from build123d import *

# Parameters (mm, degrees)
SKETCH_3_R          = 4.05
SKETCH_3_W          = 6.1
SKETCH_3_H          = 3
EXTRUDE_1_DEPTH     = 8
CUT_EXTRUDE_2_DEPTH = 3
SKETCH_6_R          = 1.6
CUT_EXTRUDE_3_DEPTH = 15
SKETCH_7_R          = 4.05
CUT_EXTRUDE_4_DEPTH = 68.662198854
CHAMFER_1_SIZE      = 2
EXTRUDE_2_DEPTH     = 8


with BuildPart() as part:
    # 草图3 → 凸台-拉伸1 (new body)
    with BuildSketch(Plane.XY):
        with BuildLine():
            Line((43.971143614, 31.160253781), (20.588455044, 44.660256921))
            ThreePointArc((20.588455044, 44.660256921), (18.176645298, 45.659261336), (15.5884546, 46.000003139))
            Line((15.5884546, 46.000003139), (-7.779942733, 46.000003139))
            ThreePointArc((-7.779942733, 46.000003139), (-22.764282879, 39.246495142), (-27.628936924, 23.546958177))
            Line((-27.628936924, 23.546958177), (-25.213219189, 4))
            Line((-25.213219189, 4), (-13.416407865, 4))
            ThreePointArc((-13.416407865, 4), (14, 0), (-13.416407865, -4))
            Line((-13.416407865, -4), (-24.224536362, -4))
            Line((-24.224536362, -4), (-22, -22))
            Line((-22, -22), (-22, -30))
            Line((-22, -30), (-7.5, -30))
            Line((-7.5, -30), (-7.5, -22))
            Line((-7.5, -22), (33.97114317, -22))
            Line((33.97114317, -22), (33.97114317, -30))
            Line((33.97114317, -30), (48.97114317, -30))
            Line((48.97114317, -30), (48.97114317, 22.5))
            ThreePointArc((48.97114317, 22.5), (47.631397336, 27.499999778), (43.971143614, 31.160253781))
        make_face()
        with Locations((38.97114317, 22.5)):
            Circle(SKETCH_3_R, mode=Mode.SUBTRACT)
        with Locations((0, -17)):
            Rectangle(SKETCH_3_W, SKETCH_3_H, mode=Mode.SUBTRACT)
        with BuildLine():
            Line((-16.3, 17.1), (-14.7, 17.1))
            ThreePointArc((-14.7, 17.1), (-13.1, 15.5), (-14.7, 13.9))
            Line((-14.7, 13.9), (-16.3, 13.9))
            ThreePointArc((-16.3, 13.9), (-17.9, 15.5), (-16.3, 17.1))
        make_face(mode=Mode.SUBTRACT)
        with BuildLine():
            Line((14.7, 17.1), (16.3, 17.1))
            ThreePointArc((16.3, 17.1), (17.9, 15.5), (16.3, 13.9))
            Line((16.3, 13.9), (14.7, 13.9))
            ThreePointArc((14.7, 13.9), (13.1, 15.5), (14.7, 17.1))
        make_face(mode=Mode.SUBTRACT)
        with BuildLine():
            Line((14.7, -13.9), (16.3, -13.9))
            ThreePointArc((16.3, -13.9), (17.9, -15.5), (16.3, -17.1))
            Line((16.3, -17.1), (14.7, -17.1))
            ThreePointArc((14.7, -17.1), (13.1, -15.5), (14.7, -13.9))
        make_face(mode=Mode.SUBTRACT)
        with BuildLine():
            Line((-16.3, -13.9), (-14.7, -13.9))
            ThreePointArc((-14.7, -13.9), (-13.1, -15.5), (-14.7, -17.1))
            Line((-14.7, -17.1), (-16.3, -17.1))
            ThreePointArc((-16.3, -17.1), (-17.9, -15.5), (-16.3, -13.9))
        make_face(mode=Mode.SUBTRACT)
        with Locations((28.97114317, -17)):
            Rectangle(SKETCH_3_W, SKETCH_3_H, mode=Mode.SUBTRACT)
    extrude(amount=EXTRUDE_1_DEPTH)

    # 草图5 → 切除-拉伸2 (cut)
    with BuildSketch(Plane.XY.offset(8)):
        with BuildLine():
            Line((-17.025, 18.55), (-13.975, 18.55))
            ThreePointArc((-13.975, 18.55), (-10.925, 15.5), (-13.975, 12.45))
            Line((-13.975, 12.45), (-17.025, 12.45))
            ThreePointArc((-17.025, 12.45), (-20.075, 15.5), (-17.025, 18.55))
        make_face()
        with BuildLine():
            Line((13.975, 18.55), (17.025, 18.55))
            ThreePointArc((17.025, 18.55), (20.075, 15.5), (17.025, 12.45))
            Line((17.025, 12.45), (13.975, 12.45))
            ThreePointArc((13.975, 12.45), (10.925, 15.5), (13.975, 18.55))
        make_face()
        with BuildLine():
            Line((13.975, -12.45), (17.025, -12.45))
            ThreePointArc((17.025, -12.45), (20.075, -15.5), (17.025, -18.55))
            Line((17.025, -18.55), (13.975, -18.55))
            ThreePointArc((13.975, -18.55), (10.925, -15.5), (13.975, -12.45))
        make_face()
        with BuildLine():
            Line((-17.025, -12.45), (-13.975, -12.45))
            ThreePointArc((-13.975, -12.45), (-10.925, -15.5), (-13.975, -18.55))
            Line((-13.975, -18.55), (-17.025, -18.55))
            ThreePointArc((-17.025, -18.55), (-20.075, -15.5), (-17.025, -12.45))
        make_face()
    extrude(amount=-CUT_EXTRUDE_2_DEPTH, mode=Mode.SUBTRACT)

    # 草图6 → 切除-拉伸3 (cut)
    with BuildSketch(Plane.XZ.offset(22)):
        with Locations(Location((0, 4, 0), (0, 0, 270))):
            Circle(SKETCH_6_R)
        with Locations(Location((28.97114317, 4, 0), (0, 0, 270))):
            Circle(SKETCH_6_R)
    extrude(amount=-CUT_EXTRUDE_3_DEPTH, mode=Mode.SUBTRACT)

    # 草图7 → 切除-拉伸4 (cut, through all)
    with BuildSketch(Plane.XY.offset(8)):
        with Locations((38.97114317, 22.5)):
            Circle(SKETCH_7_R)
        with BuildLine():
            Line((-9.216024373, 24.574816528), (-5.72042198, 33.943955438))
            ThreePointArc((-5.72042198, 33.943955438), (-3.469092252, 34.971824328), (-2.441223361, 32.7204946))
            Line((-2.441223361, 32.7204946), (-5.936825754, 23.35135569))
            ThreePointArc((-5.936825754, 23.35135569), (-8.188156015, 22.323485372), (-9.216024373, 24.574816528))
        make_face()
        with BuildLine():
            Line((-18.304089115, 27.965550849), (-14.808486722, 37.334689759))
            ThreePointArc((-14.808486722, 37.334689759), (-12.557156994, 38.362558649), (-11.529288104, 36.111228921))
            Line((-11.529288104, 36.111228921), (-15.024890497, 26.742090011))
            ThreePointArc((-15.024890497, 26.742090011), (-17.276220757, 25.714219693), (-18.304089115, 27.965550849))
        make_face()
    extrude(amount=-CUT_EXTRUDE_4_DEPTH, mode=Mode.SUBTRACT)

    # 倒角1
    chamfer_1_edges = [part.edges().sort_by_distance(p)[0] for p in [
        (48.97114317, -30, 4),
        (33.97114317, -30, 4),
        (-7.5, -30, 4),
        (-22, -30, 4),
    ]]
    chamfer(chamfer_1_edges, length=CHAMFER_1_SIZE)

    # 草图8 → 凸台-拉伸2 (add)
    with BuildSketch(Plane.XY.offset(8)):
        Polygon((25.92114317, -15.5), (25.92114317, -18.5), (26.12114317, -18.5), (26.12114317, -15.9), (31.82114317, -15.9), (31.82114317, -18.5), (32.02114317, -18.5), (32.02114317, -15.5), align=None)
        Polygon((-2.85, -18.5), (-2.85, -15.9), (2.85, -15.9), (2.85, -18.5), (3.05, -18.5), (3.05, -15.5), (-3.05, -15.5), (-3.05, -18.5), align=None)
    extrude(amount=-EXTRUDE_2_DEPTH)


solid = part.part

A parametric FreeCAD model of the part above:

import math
import FreeCAD as App
import Part
import Sketcher

V = App.Vector
Q = App.Units.Quantity


def edges_at(feature, points):
    """Names of the edges that pass closest to the given points."""
    edges = feature.Shape.Edges
    near = lambda p: min(range(len(edges)), key=lambda i: edges[i].distToShape(Part.Vertex(*p))[0])
    return sorted({f"Edge{near(p) + 1}" for p in points})


def add_polygon(sketch, points):
    """Adds a closed chain of lines whose ends are joined by coincident constraints."""
    first, n = sketch.GeometryCount, len(points)
    for a, b in zip(points, points[1:] + points[:1]):
        sketch.addGeometry(Part.LineSegment(App.Vector(*a, 0), App.Vector(*b, 0)), False)
    for i in range(n):
        sketch.addConstraint(Sketcher.Constraint("Coincident", first + i, 2, first + (i + 1) % n, 1))

doc = App.newDocument("Part")
body = doc.addObject("PartDesign::Body", "Body")

# Sketch on XY plane
sketch1 = doc.addObject("Sketcher::SketchObject", "Sketch")
body.addObject(sketch1)
sketch1.AttachmentSupport = (doc.XY_Plane, [""])
sketch1.MapMode = "FlatFace"
sketch1.addGeometry(Part.LineSegment(V(44, 31.2, 0), V(20.6, 44.7, 0)), False)  # 0
sketch1.addGeometry(Part.ArcOfCircle(Part.Circle(V(15.6, 36, 0), V(0, 0, 1), 10), math.radians(60), math.radians(90)), False)  # 1
sketch1.addGeometry(Part.LineSegment(V(15.6, 46, 0), V(-7.8, 46, 0)), False)  # 2
sketch1.addGeometry(Part.ArcOfCircle(Part.Circle(V(-7.8, 26, 0), V(0, 0, 1), 20), math.radians(90), math.radians(187)), False)  # 3
sketch1.addGeometry(Part.LineSegment(V(-27.6, 23.5, 0), V(-25.2, 4, 0)), False)  # 4
sketch1.addGeometry(Part.LineSegment(V(-25.2, 4, 0), V(-13.4, 4, 0)), False)  # 5
sketch1.addGeometry(Part.ArcOfCircle(Part.Circle(V(0, 0, 0), V(0, 0, 1), 14), math.radians(-163), math.radians(163)), False)  # 6
sketch1.addGeometry(Part.LineSegment(V(-13.4, -4, 0), V(-24.2, -4, 0)), False)  # 7
sketch1.addGeometry(Part.LineSegment(V(-24.2, -4, 0), V(-22, -22, 0)), False)  # 8
sketch1.addGeometry(Part.LineSegment(V(-22, -22, 0), V(-22, -30, 0)), False)  # 9
sketch1.addGeometry(Part.LineSegment(V(-22, -30, 0), V(-7.5, -30, 0)), False)  # 10
sketch1.addGeometry(Part.LineSegment(V(-7.5, -30, 0), V(-7.5, -22, 0)), False)  # 11
sketch1.addGeometry(Part.LineSegment(V(-7.5, -22, 0), V(34, -22, 0)), False)  # 12
sketch1.addGeometry(Part.LineSegment(V(34, -22, 0), V(34, -30, 0)), False)  # 13
sketch1.addGeometry(Part.LineSegment(V(34, -30, 0), V(49, -30, 0)), False)  # 14
sketch1.addGeometry(Part.LineSegment(V(49, -30, 0), V(49, 22.5, 0)), False)  # 15
sketch1.addGeometry(Part.ArcOfCircle(Part.Circle(V(39, 22.5, 0), V(0, 0, 1), 10), math.radians(0), math.radians(60)), False)  # 16
sketch1.addGeometry(Part.ArcOfCircle(Part.Circle(V(-16.3, -15.5, 0), V(0, 0, 1), 1.6), math.radians(90), math.radians(270)), False)  # 17
sketch1.addGeometry(Part.LineSegment(V(-16.3, -13.9, 0), V(-14.7, -13.9, 0)), False)  # 18
sketch1.addGeometry(Part.ArcOfCircle(Part.Circle(V(-14.7, -15.5, 0), V(0, 0, 1), 1.6), math.radians(-90), math.radians(90)), False)  # 19
sketch1.addGeometry(Part.LineSegment(V(-14.7, -17.1, 0), V(-16.3, -17.1, 0)), False)  # 20
add_polygon(sketch1, [(3, -18.5), (-3, -18.5), (-3, -15.5), (3, -15.5)])  # lines 21-24
sketch1.addGeometry(Part.ArcOfCircle(Part.Circle(V(14.7, -15.5, 0), V(0, 0, 1), 1.6), math.radians(90), math.radians(270)), False)  # 25
sketch1.addGeometry(Part.LineSegment(V(14.7, -13.9, 0), V(16.3, -13.9, 0)), False)  # 26
sketch1.addGeometry(Part.ArcOfCircle(Part.Circle(V(16.3, -15.5, 0), V(0, 0, 1), 1.6), math.radians(-90), math.radians(90)), False)  # 27
sketch1.addGeometry(Part.LineSegment(V(16.3, -17.1, 0), V(14.7, -17.1, 0)), False)  # 28
add_polygon(sketch1, [(32, -18.5), (25.9, -18.5), (25.9, -15.5), (32, -15.5)])  # lines 29-32
sketch1.addGeometry(Part.ArcOfCircle(Part.Circle(V(-16.3, 15.5, 0), V(0, 0, 1), 1.6), math.radians(90), math.radians(270)), False)  # 33
sketch1.addGeometry(Part.LineSegment(V(-16.3, 17.1, 0), V(-14.7, 17.1, 0)), False)  # 34
sketch1.addGeometry(Part.ArcOfCircle(Part.Circle(V(-14.7, 15.5, 0), V(0, 0, 1), 1.6), math.radians(-90), math.radians(90)), False)  # 35
sketch1.addGeometry(Part.LineSegment(V(-14.7, 13.9, 0), V(-16.3, 13.9, 0)), False)  # 36
sketch1.addGeometry(Part.ArcOfCircle(Part.Circle(V(14.7, 15.5, 0), V(0, 0, 1), 1.6), math.radians(90), math.radians(270)), False)  # 37
sketch1.addGeometry(Part.LineSegment(V(14.7, 17.1, 0), V(16.3, 17.1, 0)), False)  # 38
sketch1.addGeometry(Part.ArcOfCircle(Part.Circle(V(16.3, 15.5, 0), V(0, 0, 1), 1.6), math.radians(-90), math.radians(90)), False)  # 39
sketch1.addGeometry(Part.LineSegment(V(16.3, 13.9, 0), V(14.7, 13.9, 0)), False)  # 40
sketch1.addGeometry(Part.Circle(V(39, 22.5, 0), V(0, 0, 1), 4), False)  # 41
sketch1.addConstraint([
    Sketcher.Constraint("Tangent", 0, 2, 1, 1),
    Sketcher.Constraint("Tangent", 1, 2, 2, 1),
    Sketcher.Constraint("Tangent", 2, 2, 3, 1),
    Sketcher.Constraint("Tangent", 3, 2, 4, 1),
    Sketcher.Constraint("Coincident", 4, 2, 5, 1),
    Sketcher.Constraint("Coincident", 5, 2, 6, 2),
    Sketcher.Constraint("Coincident", 6, 1, 7, 1),
    Sketcher.Constraint("Coincident", 7, 2, 8, 1),
    Sketcher.Constraint("Coincident", 8, 2, 9, 1),
    Sketcher.Constraint("Coincident", 9, 2, 10, 1),
    Sketcher.Constraint("Coincident", 10, 2, 11, 1),
    Sketcher.Constraint("Coincident", 11, 2, 12, 1),
    Sketcher.Constraint("Coincident", 12, 2, 13, 1),
    Sketcher.Constraint("Coincident", 13, 2, 14, 1),
    Sketcher.Constraint("Coincident", 14, 2, 15, 1),
    Sketcher.Constraint("Tangent", 15, 2, 16, 1),
    Sketcher.Constraint("Tangent", 16, 2, 0, 1),
    Sketcher.Constraint("Tangent", 17, 1, 18, 1),
    Sketcher.Constraint("Tangent", 18, 2, 19, 2),
    Sketcher.Constraint("Tangent", 19, 1, 20, 1),
    Sketcher.Constraint("Tangent", 20, 2, 17, 2),
    Sketcher.Constraint("Tangent", 25, 1, 26, 1),
    Sketcher.Constraint("Tangent", 26, 2, 27, 2),
    Sketcher.Constraint("Tangent", 27, 1, 28, 1),
    Sketcher.Constraint("Tangent", 28, 2, 25, 2),
    Sketcher.Constraint("Tangent", 33, 1, 34, 1),
    Sketcher.Constraint("Tangent", 34, 2, 35, 2),
    Sketcher.Constraint("Tangent", 35, 1, 36, 1),
    Sketcher.Constraint("Tangent", 36, 2, 33, 2),
    Sketcher.Constraint("Tangent", 37, 1, 38, 1),
    Sketcher.Constraint("Tangent", 38, 2, 39, 2),
    Sketcher.Constraint("Tangent", 39, 1, 40, 1),
    Sketcher.Constraint("Tangent", 40, 2, 37, 2),
    Sketcher.Constraint("Horizontal", 2),
    Sketcher.Constraint("Horizontal", 5),
    Sketcher.Constraint("Horizontal", 7),
    Sketcher.Constraint("Vertical", 9),
    Sketcher.Constraint("Horizontal", 10),
    Sketcher.Constraint("Vertical", 11),
    Sketcher.Constraint("Horizontal", 12),
    Sketcher.Constraint("Vertical", 13),
    Sketcher.Constraint("Horizontal", 14),
    Sketcher.Constraint("Vertical", 15),
    Sketcher.Constraint("Horizontal", 18),
    Sketcher.Constraint("Horizontal", 20),
    Sketcher.Constraint("Horizontal", 21),
    Sketcher.Constraint("Vertical", 22),
    Sketcher.Constraint("Horizontal", 23),
    Sketcher.Constraint("Vertical", 24),
    Sketcher.Constraint("Horizontal", 26),
    Sketcher.Constraint("Horizontal", 28),
    Sketcher.Constraint("Horizontal", 29),
    Sketcher.Constraint("Vertical", 30),
    Sketcher.Constraint("Horizontal", 31),
    Sketcher.Constraint("Vertical", 32),
    Sketcher.Constraint("Horizontal", 34),
    Sketcher.Constraint("Horizontal", 36),
    Sketcher.Constraint("Horizontal", 38),
    Sketcher.Constraint("Horizontal", 40),
    Sketcher.Constraint("Coincident", 6, 3, -1, 1),
    Sketcher.Constraint("Coincident", 41, 3, 16, 3),
    Sketcher.Constraint("Equal", 1, 16),
    Sketcher.Constraint("Equal", 19, 25),
    Sketcher.Constraint("Equal", 27, 33),
    Sketcher.Constraint("Equal", 35, 37),
    Sketcher.Constraint("Symmetric", 27, 3, 33, 3, -1, 1),
    Sketcher.Constraint("Symmetric", 19, 3, 37, 3, -1, 1),
    Sketcher.Constraint("Symmetric", 19, 3, 25, 3, -2),
    Sketcher.Constraint("Parallel", 4, 8),
    Sketcher.Constraint("Horizontal", 8, 2, 11, 2),
    Sketcher.Constraint("Horizontal", 10, 2, 13, 2),
    Sketcher.Constraint("Horizontal", 27, 3, 22, 2),
    Sketcher.Constraint("Horizontal", 24, 2, 29, 2),
    Sketcher.Constraint("Horizontal", 23, 2, 30, 2),
    Sketcher.Constraint("Vertical", 17, 3, 33, 3),
    Sketcher.Constraint("Vertical", 19, 3, 35, 3),
    Sketcher.Constraint("Vertical", 27, 3, 39, 3),
    Sketcher.Constraint("Vertical", 5, 2, 6, 1),
    Sketcher.Constraint("Equal", 23, 29),
    Sketcher.Constraint("Radius", 1, Q("10 mm")),
    Sketcher.Constraint("Radius", 3, Q("20 mm")),
    Sketcher.Constraint("Radius", 6, Q("14 mm")),
    Sketcher.Constraint("Diameter", 41, Q("8.1 mm")),
    Sketcher.Constraint("Radius", 17, Q("1.6 mm")),
    Sketcher.Constraint("DistanceX", 14, 1, 14, 2, Q("15 mm")),
    Sketcher.Constraint("DistanceY", 9, 2, 9, 1, Q("8 mm")),
    Sketcher.Constraint("DistanceY", 22, 1, 22, 2, Q("3 mm")),
    Sketcher.Constraint("Angle", 0, Q("149.999997 deg")),
    Sketcher.Constraint("DistanceX", 10, 1, 10, 2, Q("14.5 mm")),
    Sketcher.Constraint("DistanceX", 18, 1, 18, 2, Q("1.6 mm")),
    Sketcher.Constraint("DistanceX", 21, 2, 21, 1, Q("6.1 mm")),
    Sketcher.Constraint("DistanceY", 15, 1, 15, 2, Q("52.5 mm")),
    Sketcher.Constraint("DistanceY", -1, 1, 4, 2, Q("4 mm")),
    Sketcher.Constraint("DistanceX", 8, 2, -1, 1, Q("22 mm")),
    Sketcher.Constraint("DistanceY", 8, 2, -1, 1, Q("22 mm")),
    Sketcher.Constraint("DistanceY", 17, 3, 16, 3, Q("38 mm")),
    Sketcher.Constraint("DistanceX", 17, 3, 25, 3, Q("31 mm")),
    Sketcher.Constraint("DistanceX", 21, 2, -1, 1, Q("3.05 mm")),
    Sketcher.Constraint("DistanceX", 29, 2, 12, 2, Q("8.05 mm")),
    Sketcher.Constraint("DistanceX", 5, 1, 5, 2, Q("11.796811 mm")),
    Sketcher.Constraint("DistanceX", 7, 2, 7, 1, Q("10.808128 mm")),
    Sketcher.Constraint("DistanceX", 2, 2, 2, 1, Q("23.368397 mm")),
    Sketcher.Constraint("DistanceX", 12, 1, 12, 2, Q("41.471143 mm")),
])
pad1 = doc.addObject("PartDesign::Pad", "Pad")
body.addObject(pad1)
pad1.Profile = sketch1
pad1.Length = 8

# Sketch on XY plane
sketch2 = doc.addObject("Sketcher::SketchObject", "Sketch001")
body.addObject(sketch2)
sketch2.AttachmentSupport = (doc.XY_Plane, [""])
sketch2.MapMode = "FlatFace"
sketch2.AttachmentOffset = App.Placement(V(0, 0, 8), App.Rotation())
sketch2.addGeometry([
    Part.LineSegment(V(-14, 18.6, 0), V(-17, 18.6, 0)),  # 0
    Part.ArcOfCircle(Part.Circle(V(-17, 15.5, 0), V(0, 0, 1), 3), math.radians(90), math.radians(270)),  # 1
    Part.LineSegment(V(-17, 12.4, 0), V(-14, 12.4, 0)),  # 2
    Part.ArcOfCircle(Part.Circle(V(-14, 15.5, 0), V(0, 0, 1), 3), math.radians(-90), math.radians(90)),  # 3
    Part.LineSegment(V(17, 18.6, 0), V(14, 18.6, 0)),  # 4
    Part.ArcOfCircle(Part.Circle(V(14, 15.5, 0), V(0, 0, 1), 3), math.radians(90), math.radians(270)),  # 5
    Part.LineSegment(V(14, 12.4, 0), V(17, 12.4, 0)),  # 6
    Part.ArcOfCircle(Part.Circle(V(17, 15.5, 0), V(0, 0, 1), 3), math.radians(-90), math.radians(90)),  # 7
    Part.LineSegment(V(17, -12.4, 0), V(14, -12.4, 0)),  # 8
    Part.ArcOfCircle(Part.Circle(V(14, -15.5, 0), V(0, 0, 1), 3), math.radians(90), math.radians(270)),  # 9
    Part.LineSegment(V(14, -18.6, 0), V(17, -18.6, 0)),  # 10
    Part.ArcOfCircle(Part.Circle(V(17, -15.5, 0), V(0, 0, 1), 3), math.radians(-90), math.radians(90)),  # 11
    Part.LineSegment(V(-14, -12.4, 0), V(-17, -12.4, 0)),  # 12
    Part.ArcOfCircle(Part.Circle(V(-17, -15.5, 0), V(0, 0, 1), 3), math.radians(90), math.radians(270)),  # 13
    Part.LineSegment(V(-17, -18.6, 0), V(-14, -18.6, 0)),  # 14
    Part.ArcOfCircle(Part.Circle(V(-14, -15.5, 0), V(0, 0, 1), 3), math.radians(-90), math.radians(90)),  # 15
], False)
sketch2.addConstraint([
    Sketcher.Constraint("Tangent", 0, 2, 1, 1),
    Sketcher.Constraint("Tangent", 1, 2, 2, 1),
    Sketcher.Constraint("Tangent", 2, 2, 3, 1),
    Sketcher.Constraint("Tangent", 3, 2, 0, 1),
    Sketcher.Constraint("Tangent", 4, 2, 5, 1),
    Sketcher.Constraint("Tangent", 5, 2, 6, 1),
    Sketcher.Constraint("Tangent", 6, 2, 7, 1),
    Sketcher.Constraint("Tangent", 7, 2, 4, 1),
    Sketcher.Constraint("Tangent", 8, 2, 9, 1),
    Sketcher.Constraint("Tangent", 9, 2, 10, 1),
    Sketcher.Constraint("Tangent", 10, 2, 11, 1),
    Sketcher.Constraint("Tangent", 11, 2, 8, 1),
    Sketcher.Constraint("Tangent", 12, 2, 13, 1),
    Sketcher.Constraint("Tangent", 13, 2, 14, 1),
    Sketcher.Constraint("Tangent", 14, 2, 15, 1),
    Sketcher.Constraint("Tangent", 15, 2, 12, 1),
    Sketcher.Constraint("Horizontal", 0),
    Sketcher.Constraint("Horizontal", 2),
    Sketcher.Constraint("Horizontal", 4),
    Sketcher.Constraint("Horizontal", 6),
    Sketcher.Constraint("Horizontal", 8),
    Sketcher.Constraint("Horizontal", 10),
    Sketcher.Constraint("Horizontal", 12),
    Sketcher.Constraint("Horizontal", 14),
    Sketcher.Constraint("Equal", 3, 5),
    Sketcher.Constraint("Equal", 7, 9),
    Sketcher.Constraint("Equal", 11, 13),
    Sketcher.Constraint("Symmetric", 3, 3, 9, 3, -1, 1),
    Sketcher.Constraint("Symmetric", 7, 3, 13, 3, -1, 1),
    Sketcher.Constraint("Symmetric", 3, 3, 5, 3, -2),
    Sketcher.Constraint("Vertical", 7, 3, 11, 3),
    Sketcher.Constraint("Vertical", 1, 3, 13, 3),
    Sketcher.Constraint("Vertical", 3, 3, 15, 3),
    Sketcher.Constraint("Radius", 1, Q("3.05 mm")),
    Sketcher.Constraint("DistanceX", 1, 3, 5, 3, Q("31 mm")),
    Sketcher.Constraint("DistanceY", 9, 3, 5, 3, Q("31 mm")),
    Sketcher.Constraint("DistanceX", 0, 2, 0, 1, Q("3.05 mm")),
])
pocket1 = doc.addObject("PartDesign::Pocket", "Pocket")
body.addObject(pocket1)
pocket1.Profile = sketch2
pocket1.Length = 3

# Sketch on XZ plane
sketch3 = doc.addObject("Sketcher::SketchObject", "Sketch002")
body.addObject(sketch3)
sketch3.AttachmentSupport = (doc.XZ_Plane, [""])
sketch3.MapMode = "FlatFace"
sketch3.AttachmentOffset = App.Placement(V(0, 0, 22), App.Rotation())
sketch3.addGeometry([
    Part.Circle(V(0, 4, 0), V(0, 0, 1), 1.6),
    Part.Circle(V(29, 4, 0), V(0, 0, 1), 1.6),
], False)
sketch3.addConstraint([
    Sketcher.Constraint("Equal", 0, 1),
    Sketcher.Constraint("PointOnObject", 0, 3, -2),
    Sketcher.Constraint("Horizontal", 0, 3, 1, 3),
    Sketcher.Constraint("Diameter", 0, Q("3.2 mm")),
    Sketcher.Constraint("DistanceY", -1, 1, 0, 3, Q("4 mm")),
    Sketcher.Constraint("DistanceX", -1, 1, 1, 3, Q("28.971143 mm")),
])
pocket2 = doc.addObject("PartDesign::Pocket", "Pocket001")
body.addObject(pocket2)
pocket2.Profile = sketch3
pocket2.Length = 15

# Sketch on XY plane
sketch4 = doc.addObject("Sketcher::SketchObject", "Sketch003")
body.addObject(sketch4)
sketch4.AttachmentSupport = (doc.XY_Plane, [""])
sketch4.MapMode = "FlatFace"
sketch4.AttachmentOffset = App.Placement(V(0, 0, 8), App.Rotation())
sketch4.addGeometry([
    Part.Circle(V(39, 22.5, 0), V(0, 0, 1), 4),  # 0
    Part.LineSegment(V(-5.7, 33.9, 0), V(-9.2, 24.6, 0)),  # 1
    Part.ArcOfCircle(Part.Circle(V(-7.6, 24, 0), V(0, 0, 1), 1.8), math.radians(160), math.radians(340)),  # 2
    Part.LineSegment(V(-5.9, 23.4, 0), V(-2.4, 32.7, 0)),  # 3
    Part.ArcOfCircle(Part.Circle(V(-4.1, 33.3, 0), V(0, 0, 1), 1.8), math.radians(-20), math.radians(160)),  # 4
    Part.LineSegment(V(-14.8, 37.3, 0), V(-18.3, 28, 0)),  # 5
    Part.ArcOfCircle(Part.Circle(V(-16.7, 27.4, 0), V(0, 0, 1), 1.8), math.radians(160), math.radians(340)),  # 6
    Part.LineSegment(V(-15, 26.7, 0), V(-11.5, 36.1, 0)),  # 7
    Part.ArcOfCircle(Part.Circle(V(-13.2, 36.7, 0), V(0, 0, 1), 1.8), math.radians(-20), math.radians(160)),  # 8
], False)
sketch4.addConstraint([
    Sketcher.Constraint("Tangent", 1, 2, 2, 1),
    Sketcher.Constraint("Tangent", 2, 2, 3, 1),
    Sketcher.Constraint("Tangent", 3, 2, 4, 1),
    Sketcher.Constraint("Tangent", 4, 2, 1, 1),
    Sketcher.Constraint("Tangent", 5, 2, 6, 1),
    Sketcher.Constraint("Tangent", 6, 2, 7, 1),
    Sketcher.Constraint("Tangent", 7, 2, 8, 1),
    Sketcher.Constraint("Tangent", 8, 2, 5, 1),
    Sketcher.Constraint("Equal", 2, 4),
    Sketcher.Constraint("Equal", 4, 6),
    Sketcher.Constraint("Equal", 6, 8),
    Sketcher.Constraint("Parallel", 3, 5),
    Sketcher.Constraint("Equal", 3, 5),
    Sketcher.Constraint("Diameter", 0, Q("8.1 mm")),
    Sketcher.Constraint("Radius", 2, Q("1.75 mm")),
    Sketcher.Constraint("Distance", 1, Q("10 mm")),
    Sketcher.Constraint("DistanceY", -1, 1, 0, 3, Q("22.5 mm")),
    Sketcher.Constraint("DistanceX", 1, 2, 2, 3, Q("1.639599 mm")),
    Sketcher.Constraint("DistanceX", 6, 3, -1, 1, Q("16.66449 mm")),
    Sketcher.Constraint("DistanceY", -1, 1, 6, 3, Q("27.353819 mm")),
    Sketcher.Constraint("DistanceX", 4, 2, -1, 1, Q("5.720422 mm")),
    Sketcher.Constraint("DistanceX", 2, 3, 0, 3, Q("46.547569 mm")),
    Sketcher.Constraint("DistanceY", -1, 1, 2, 3, Q("23.963085 mm")),
])
pocket3 = doc.addObject("PartDesign::Pocket", "Pocket002")
body.addObject(pocket3)
pocket3.Profile = sketch4
pocket3.Type = "ThroughAll"
doc.recompute()

chamfer = doc.addObject("PartDesign::Chamfer", "Chamfer")
body.addObject(chamfer)
chamfer.Base = (pocket3, edges_at(pocket3, [
    (48.971, -30, 4),
    (33.971, -30, 4),
    (-7.5, -30, 4),
    (-22, -30, 4),
]))
chamfer.Size = 2

# Sketch on XY plane
sketch5 = doc.addObject("Sketcher::SketchObject", "Sketch004")
body.addObject(sketch5)
sketch5.AttachmentSupport = (doc.XY_Plane, [""])
sketch5.MapMode = "FlatFace"
sketch5.AttachmentOffset = App.Placement(V(0, 0, 8), App.Rotation())
add_polygon(sketch5, [(25.92, -15.5), (25.92, -18.5), (26.12, -18.5), (26.12, -15.9), (31.82, -15.9), (31.82, -18.5), (32.02, -18.5), (32.02, -15.5)])  # lines 0-7
add_polygon(sketch5, [(-2.85, -18.5), (-2.85, -15.9), (2.85, -15.9), (2.85, -18.5), (3.05, -18.5), (3.05, -15.5), (-3.05, -15.5), (-3.05, -18.5)])  # lines 8-15
sketch5.addConstraint([
    Sketcher.Constraint("Vertical", 0),
    Sketcher.Constraint("Horizontal", 1),
    Sketcher.Constraint("Vertical", 2),
    Sketcher.Constraint("Horizontal", 3),
    Sketcher.Constraint("Vertical", 4),
    Sketcher.Constraint("Horizontal", 5),
    Sketcher.Constraint("Vertical", 6),
    Sketcher.Constraint("Horizontal", 7),
    Sketcher.Constraint("Vertical", 8),
    Sketcher.Constraint("Horizontal", 9),
    Sketcher.Constraint("Vertical", 10),
    Sketcher.Constraint("Horizontal", 11),
    Sketcher.Constraint("Vertical", 12),
    Sketcher.Constraint("Horizontal", 13),
    Sketcher.Constraint("Vertical", 14),
    Sketcher.Constraint("Horizontal", 15),
    Sketcher.Constraint("Symmetric", 11, 2, 14, 2, -2),
    Sketcher.Constraint("Horizontal", 1, 2, 4, 2),
    Sketcher.Constraint("Horizontal", 3, 2, 8, 2),
    Sketcher.Constraint("Horizontal", 5, 2, 10, 2),
    Sketcher.Constraint("Horizontal", 7, 2, 12, 2),
    Sketcher.Constraint("Equal", 1, 5),
    Sketcher.Constraint("Equal", 3, 9),
    Sketcher.Constraint("Equal", 5, 11),
    Sketcher.Constraint("Equal", 7, 13),
    Sketcher.Constraint("DistanceY", 0, 2, 0, 1, Q("3 mm")),
    Sketcher.Constraint("DistanceX", 1, 1, 1, 2, Q("0.2 mm")),
    Sketcher.Constraint("DistanceX", 3, 1, 3, 2, Q("5.7 mm")),
    Sketcher.Constraint("DistanceY", 2, 1, 2, 2, Q("2.6 mm")),
    Sketcher.Constraint("DistanceY", 0, 2, -1, 1, Q("18.5 mm")),
    Sketcher.Constraint("DistanceX", -1, 1, 0, 2, Q("25.921143 mm")),
])
pad2 = doc.addObject("PartDesign::Pad", "Pad001")
body.addObject(pad2)
pad2.Profile = sketch5
pad2.Length = 8
pad2.Reversed = True

doc.recompute()
